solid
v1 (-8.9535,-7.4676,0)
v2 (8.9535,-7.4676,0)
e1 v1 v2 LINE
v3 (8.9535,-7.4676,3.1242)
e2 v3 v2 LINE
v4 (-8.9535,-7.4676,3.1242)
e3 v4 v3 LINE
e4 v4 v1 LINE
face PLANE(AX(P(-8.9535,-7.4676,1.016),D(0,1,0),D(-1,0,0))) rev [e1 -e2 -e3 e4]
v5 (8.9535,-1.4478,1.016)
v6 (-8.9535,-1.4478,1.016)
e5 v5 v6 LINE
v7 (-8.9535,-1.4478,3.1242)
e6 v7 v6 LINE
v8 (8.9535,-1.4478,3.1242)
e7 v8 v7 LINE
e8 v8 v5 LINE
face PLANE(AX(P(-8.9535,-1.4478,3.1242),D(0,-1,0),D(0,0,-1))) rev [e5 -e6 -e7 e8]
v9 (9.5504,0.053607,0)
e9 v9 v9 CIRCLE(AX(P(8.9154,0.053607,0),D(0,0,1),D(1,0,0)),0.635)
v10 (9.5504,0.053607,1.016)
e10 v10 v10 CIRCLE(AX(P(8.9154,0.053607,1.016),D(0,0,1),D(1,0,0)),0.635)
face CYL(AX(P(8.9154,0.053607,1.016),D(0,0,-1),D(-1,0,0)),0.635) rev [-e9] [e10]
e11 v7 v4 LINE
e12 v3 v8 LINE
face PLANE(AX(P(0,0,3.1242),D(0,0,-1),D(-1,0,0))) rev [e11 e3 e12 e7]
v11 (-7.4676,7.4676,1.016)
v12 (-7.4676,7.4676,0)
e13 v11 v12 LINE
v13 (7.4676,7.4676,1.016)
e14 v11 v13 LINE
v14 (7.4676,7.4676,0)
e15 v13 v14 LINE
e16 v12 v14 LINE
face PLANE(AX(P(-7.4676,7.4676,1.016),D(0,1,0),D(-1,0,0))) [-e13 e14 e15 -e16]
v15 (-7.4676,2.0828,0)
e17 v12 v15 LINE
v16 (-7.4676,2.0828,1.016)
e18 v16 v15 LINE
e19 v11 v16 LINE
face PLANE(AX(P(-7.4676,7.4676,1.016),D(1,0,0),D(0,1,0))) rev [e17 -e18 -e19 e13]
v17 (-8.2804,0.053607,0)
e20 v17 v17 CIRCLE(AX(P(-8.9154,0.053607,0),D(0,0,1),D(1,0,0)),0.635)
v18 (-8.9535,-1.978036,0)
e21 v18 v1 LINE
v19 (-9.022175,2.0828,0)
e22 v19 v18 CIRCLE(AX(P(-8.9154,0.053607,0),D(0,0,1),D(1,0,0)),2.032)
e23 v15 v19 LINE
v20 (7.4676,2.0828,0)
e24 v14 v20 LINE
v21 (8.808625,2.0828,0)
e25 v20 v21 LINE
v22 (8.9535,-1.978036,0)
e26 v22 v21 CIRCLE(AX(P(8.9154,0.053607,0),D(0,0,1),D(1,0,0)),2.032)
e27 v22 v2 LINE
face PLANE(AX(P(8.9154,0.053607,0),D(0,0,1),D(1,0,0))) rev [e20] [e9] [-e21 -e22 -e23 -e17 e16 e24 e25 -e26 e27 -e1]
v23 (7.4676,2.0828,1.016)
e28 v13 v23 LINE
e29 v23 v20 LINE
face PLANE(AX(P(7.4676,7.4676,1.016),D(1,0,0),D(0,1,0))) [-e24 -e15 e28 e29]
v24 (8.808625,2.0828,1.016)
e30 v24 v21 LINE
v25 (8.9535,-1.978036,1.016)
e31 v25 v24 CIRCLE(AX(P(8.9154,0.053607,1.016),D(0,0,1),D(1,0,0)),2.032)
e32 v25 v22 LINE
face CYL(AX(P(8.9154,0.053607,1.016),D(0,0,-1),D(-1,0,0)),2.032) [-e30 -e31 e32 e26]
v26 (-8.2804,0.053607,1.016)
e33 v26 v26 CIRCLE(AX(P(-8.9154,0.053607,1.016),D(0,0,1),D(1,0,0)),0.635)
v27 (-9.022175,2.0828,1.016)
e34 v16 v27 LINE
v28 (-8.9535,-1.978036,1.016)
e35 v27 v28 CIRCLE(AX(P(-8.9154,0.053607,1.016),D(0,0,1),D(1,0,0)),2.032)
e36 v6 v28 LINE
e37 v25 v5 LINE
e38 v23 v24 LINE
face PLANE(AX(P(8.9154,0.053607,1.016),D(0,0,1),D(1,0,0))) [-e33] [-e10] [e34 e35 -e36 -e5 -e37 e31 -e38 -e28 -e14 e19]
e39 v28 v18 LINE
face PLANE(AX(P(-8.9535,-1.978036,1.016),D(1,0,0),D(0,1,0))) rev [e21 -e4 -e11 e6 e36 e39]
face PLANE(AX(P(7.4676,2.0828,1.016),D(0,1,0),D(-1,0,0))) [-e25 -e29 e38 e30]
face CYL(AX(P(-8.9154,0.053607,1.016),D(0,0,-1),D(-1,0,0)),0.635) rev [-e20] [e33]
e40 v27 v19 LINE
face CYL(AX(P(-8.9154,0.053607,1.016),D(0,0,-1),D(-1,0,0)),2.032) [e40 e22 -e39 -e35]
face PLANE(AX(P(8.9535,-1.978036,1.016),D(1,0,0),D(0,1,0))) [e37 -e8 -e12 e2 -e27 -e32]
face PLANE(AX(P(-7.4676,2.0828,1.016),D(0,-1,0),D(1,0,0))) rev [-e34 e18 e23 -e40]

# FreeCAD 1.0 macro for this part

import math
import FreeCAD as App
import Part
import Sketcher
Q = App.Units.Quantity


def add_polygon(sketch, points):
    """Adds a closed chain of lines whose ends are joined by coincident constraints."""
    first, n = sketch.GeometryCount, len(points)
    for a, b in zip(points, points[1:] + points[:1]):
        sketch.addGeometry(Part.LineSegment(App.Vector(*a, 0), App.Vector(*b, 0)), False)
    for i in range(n):
        sketch.addConstraint(Sketcher.Constraint("Coincident", first + i, 2, first + (i + 1) % n, 1))

doc = App.newDocument("Part")
body = doc.addObject("PartDesign::Body", "Body")

sketch1 = body.newObject("Sketcher::SketchObject", "Sketch")
sketch1.AttachmentSupport = (doc.getObject("XY_Plane"), [""])
sketch1.MapMode = "FlatFace"
sketch1.addGeometry([
    Part.LineSegment(App.Vector(7.5, 7.5, 0), App.Vector(-7.5, 7.5, 0)),
    Part.LineSegment(App.Vector(-7.5, 7.5, 0), App.Vector(-7.5, 2.1, 0)),
    Part.LineSegment(App.Vector(-7.5, 2.1, 0), App.Vector(-9, 2.1, 0)),
    Part.ArcOfCircle(Part.Circle(App.Vector(-8.9, 0.1, 0), App.Vector(0, 0, 1), 2), math.radians(93), math.radians(269)),
    Part.LineSegment(App.Vector(-9, -2, 0), App.Vector(-9, -7.5, 0)),
    Part.LineSegment(App.Vector(-9, -7.5, 0), App.Vector(9, -7.5, 0)),
    Part.LineSegment(App.Vector(9, -7.5, 0), App.Vector(9, -2, 0)),
    Part.ArcOfCircle(Part.Circle(App.Vector(8.9, 0.1, 0), App.Vector(0, 0, 1), 2), math.radians(-89), math.radians(93)),
    Part.LineSegment(App.Vector(8.8, 2.1, 0), App.Vector(7.5, 2.1, 0)),
    Part.LineSegment(App.Vector(7.5, 2.1, 0), App.Vector(7.5, 7.5, 0)),
    Part.Circle(App.Vector(8.9, 0.1, 0), App.Vector(0, 0, 1), 0.6),
    Part.Circle(App.Vector(-8.9, 0.1, 0), App.Vector(0, 0, 1), 0.6),
], False)
sketch1.addConstraint([
    Sketcher.Constraint("Coincident", 0, 2, 1, 1),
    Sketcher.Constraint("Coincident", 1, 2, 2, 1),
    Sketcher.Constraint("Coincident", 2, 2, 3, 1),
    Sketcher.Constraint("Coincident", 3, 2, 4, 1),
    Sketcher.Constraint("Coincident", 4, 2, 5, 1),
    Sketcher.Constraint("Coincident", 5, 2, 6, 1),
    Sketcher.Constraint("Coincident", 6, 2, 7, 1),
    Sketcher.Constraint("Coincident", 7, 2, 8, 1),
    Sketcher.Constraint("Coincident", 8, 2, 9, 1),
    Sketcher.Constraint("Coincident", 9, 2, 0, 1),
    Sketcher.Constraint("Horizontal", 0),
    Sketcher.Constraint("Vertical", 1),
    Sketcher.Constraint("Horizontal", 2),
    Sketcher.Constraint("Vertical", 4),
    Sketcher.Constraint("Horizontal", 5),
    Sketcher.Constraint("Vertical", 6),
    Sketcher.Constraint("Horizontal", 8),
    Sketcher.Constraint("Vertical", 9),
    Sketcher.Constraint("Coincident", 10, 3, 7, 3),
    Sketcher.Constraint("Coincident", 11, 3, 3, 3),
    Sketcher.Constraint("Equal", 3, 7),
    Sketcher.Constraint("Equal", 10, 11),
    Sketcher.Constraint("Symmetric", 3, 3, 7, 3, -2),
    Sketcher.Constraint("Symmetric", 1, 2, 8, 2, -2),
    Sketcher.Constraint("Horizontal", 3, 2, 6, 2),
    Sketcher.Constraint("Diameter", 10, Q("0.05 in")),
    Sketcher.Constraint("Radius", 3, Q("0.08 in")),
    Sketcher.Constraint("DistanceX", 0, 2, 0, 1, Q("0.588 in")),
    Sketcher.Constraint("DistanceX", 5, 1, 5, 2, Q("0.705 in")),
    Sketcher.Constraint("DistanceY", 1, 2, 1, 1, Q("0.212 in")),
    Sketcher.Constraint("DistanceX", 3, 3, -1, 1, Q("0.351 in")),
    Sketcher.Constraint("DistanceY", -1, 1, 0, 2, Q("0.294 in")),
    Sketcher.Constraint("DistanceY", 4, 2, -1, 1, Q("0.294 in")),
    Sketcher.Constraint("DistanceX", 2, 2, 2, 1, 1.554575),
])
pad1 = body.newObject("PartDesign::Pad", "Pad")
pad1.Profile = sketch1
pad1.Length = Q("0.04 in")

sketch2 = body.newObject("Sketcher::SketchObject", "Sketch001")
sketch2.AttachmentSupport = (doc.getObject("XY_Plane"), [""])
sketch2.MapMode = "FlatFace"
sketch2.AttachmentOffset = App.Placement(App.Vector(0, 0, 0.04 * 25.4), App.Rotation())
add_polygon(sketch2, [(-9, -1), (-9, -7), (9, -7), (9, -1)])
sketch2.addConstraint([
    Sketcher.Constraint("Vertical", 0),
    Sketcher.Constraint("Horizontal", 1),
    Sketcher.Constraint("Vertical", 2),
    Sketcher.Constraint("Horizontal", 3),
    Sketcher.Constraint("DistanceX", 1, 1, 1, 2, Q("0.705 in")),
    Sketcher.Constraint("DistanceY", 0, 2, 0, 1, Q("0.237 in")),
    Sketcher.Constraint("DistanceY", 0, 2, -1, 1, Q("0.294 in")),
    Sketcher.Constraint("DistanceX", 0, 2, -1, 1, Q("0.3525 in")),
])
pad2 = body.newObject("PartDesign::Pad", "Pad001")
pad2.Profile = sketch2
pad2.Length = Q("0.083 in")

doc.recompute()
